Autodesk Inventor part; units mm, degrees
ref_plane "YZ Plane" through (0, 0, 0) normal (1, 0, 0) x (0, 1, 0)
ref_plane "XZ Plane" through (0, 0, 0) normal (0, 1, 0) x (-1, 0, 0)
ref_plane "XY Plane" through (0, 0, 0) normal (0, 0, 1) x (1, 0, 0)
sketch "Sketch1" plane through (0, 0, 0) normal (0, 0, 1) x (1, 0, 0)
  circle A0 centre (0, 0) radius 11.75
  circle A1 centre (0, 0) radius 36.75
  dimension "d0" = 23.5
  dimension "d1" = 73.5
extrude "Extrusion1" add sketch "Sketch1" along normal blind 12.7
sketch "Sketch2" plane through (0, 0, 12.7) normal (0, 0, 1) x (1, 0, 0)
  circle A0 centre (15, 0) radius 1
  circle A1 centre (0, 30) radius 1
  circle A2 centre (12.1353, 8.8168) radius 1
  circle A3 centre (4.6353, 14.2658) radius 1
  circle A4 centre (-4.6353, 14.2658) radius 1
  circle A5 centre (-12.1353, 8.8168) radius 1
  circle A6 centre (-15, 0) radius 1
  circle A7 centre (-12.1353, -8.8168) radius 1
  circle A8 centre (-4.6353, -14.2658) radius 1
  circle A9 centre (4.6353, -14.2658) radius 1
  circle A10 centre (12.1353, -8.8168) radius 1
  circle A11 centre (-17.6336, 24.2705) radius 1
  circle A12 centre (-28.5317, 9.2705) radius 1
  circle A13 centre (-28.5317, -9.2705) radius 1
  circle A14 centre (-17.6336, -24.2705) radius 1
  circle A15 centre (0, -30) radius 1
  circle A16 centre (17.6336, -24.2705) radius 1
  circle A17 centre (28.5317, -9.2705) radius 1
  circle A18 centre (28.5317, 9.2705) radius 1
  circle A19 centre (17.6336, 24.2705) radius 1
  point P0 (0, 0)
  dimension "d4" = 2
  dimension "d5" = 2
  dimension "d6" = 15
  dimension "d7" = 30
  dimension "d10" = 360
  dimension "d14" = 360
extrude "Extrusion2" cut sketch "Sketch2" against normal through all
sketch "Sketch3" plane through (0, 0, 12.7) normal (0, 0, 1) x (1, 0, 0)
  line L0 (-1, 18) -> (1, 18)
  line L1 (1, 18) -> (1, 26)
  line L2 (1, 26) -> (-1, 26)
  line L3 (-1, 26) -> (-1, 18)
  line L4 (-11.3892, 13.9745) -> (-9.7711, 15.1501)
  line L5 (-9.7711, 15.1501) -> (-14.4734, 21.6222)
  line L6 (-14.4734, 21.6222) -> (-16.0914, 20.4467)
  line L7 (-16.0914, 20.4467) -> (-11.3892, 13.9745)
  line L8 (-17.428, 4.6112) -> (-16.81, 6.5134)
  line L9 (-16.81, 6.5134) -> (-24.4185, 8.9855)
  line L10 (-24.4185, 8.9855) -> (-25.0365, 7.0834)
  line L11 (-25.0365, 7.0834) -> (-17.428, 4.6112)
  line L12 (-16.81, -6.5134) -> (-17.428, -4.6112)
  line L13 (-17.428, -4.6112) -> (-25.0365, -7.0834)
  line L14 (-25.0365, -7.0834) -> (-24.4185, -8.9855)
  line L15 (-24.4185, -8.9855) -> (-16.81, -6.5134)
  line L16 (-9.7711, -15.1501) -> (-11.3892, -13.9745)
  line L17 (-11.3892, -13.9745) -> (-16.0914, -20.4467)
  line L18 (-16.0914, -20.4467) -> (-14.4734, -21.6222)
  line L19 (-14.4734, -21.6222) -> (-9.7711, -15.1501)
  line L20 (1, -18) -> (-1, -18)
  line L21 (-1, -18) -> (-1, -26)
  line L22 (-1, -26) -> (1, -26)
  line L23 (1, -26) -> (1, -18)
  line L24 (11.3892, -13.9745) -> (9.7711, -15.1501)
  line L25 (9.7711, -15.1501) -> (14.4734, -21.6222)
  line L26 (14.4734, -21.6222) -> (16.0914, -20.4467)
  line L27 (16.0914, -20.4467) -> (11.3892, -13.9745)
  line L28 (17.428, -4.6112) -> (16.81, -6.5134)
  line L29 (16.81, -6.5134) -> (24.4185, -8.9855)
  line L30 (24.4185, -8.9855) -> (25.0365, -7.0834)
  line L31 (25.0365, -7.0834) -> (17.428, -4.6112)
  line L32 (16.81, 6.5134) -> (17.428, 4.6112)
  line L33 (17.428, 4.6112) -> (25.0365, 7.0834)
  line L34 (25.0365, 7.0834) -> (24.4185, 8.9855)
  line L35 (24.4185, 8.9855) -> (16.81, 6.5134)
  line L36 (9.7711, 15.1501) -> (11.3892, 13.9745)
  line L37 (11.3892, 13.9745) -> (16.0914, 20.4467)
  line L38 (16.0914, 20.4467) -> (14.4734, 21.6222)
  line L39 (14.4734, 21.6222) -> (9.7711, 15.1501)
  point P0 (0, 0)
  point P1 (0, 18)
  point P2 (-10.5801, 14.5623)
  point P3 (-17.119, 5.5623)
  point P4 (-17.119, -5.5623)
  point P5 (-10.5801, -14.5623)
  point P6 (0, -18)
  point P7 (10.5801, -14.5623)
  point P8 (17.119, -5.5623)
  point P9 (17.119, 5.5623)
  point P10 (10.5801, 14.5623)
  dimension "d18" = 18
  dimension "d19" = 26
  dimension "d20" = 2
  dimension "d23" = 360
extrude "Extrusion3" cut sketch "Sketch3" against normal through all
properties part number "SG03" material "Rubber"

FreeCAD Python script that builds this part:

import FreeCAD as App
import Part
import Sketcher
from FreeCAD import Vector
Q = App.Units.Quantity

doc = App.newDocument("Part")
body = doc.addObject("PartDesign::Body", "Body")

sketch1 = body.newObject("Sketcher::SketchObject", "Sketch")
sketch1.AttachmentSupport = (doc.getObject("XY_Plane"), [""])
sketch1.MapMode = "FlatFace"
sketch1.addGeometry(Part.Circle(Vector(0, 0, 0), Vector(0, 0, 1), 37), False)
sketch1.addGeometry(Part.Circle(Vector(0, 0, 0), Vector(0, 0, 1), 12), False)
sketch1.addConstraint(Sketcher.Constraint("Coincident", 0, 3, -1, 1))
sketch1.addConstraint(Sketcher.Constraint("Coincident", 1, 3, -1, 1))
sketch1.addConstraint(Sketcher.Constraint("Diameter", 0, 73.5))
sketch1.addConstraint(Sketcher.Constraint("Diameter", 1, 23.5))
pad1 = body.newObject("PartDesign::Pad", "Pad")
pad1.Profile = sketch1
pad1.Length = 12.7

sketch2 = body.newObject("Sketcher::SketchObject", "Sketch001")
sketch2.AttachmentSupport = (doc.getObject("XY_Plane"), [""])
sketch2.MapMode = "FlatFace"
sketch2.AttachmentOffset = App.Placement(Vector(0, 0, 12.7), App.Rotation())
sketch2.addGeometry(Part.Circle(Vector(15, 0, 0), Vector(0, 0, 1), 1), False)
sketch2.addGeometry(Part.Circle(Vector(0, 30, 0), Vector(0, 0, 1), 1), False)
sketch2.addGeometry(Part.Circle(Vector(12.1, 8.8, 0), Vector(0, 0, 1), 1), False)
sketch2.addGeometry(Part.Circle(Vector(4.6, 14.3, 0), Vector(0, 0, 1), 1), False)
sketch2.addGeometry(Part.Circle(Vector(-4.6, 14.3, 0), Vector(0, 0, 1), 1), False)
sketch2.addGeometry(Part.Circle(Vector(-12.1, 8.8, 0), Vector(0, 0, 1), 1), False)
sketch2.addGeometry(Part.Circle(Vector(-15, 0, 0), Vector(0, 0, 1), 1), False)
sketch2.addGeometry(Part.Circle(Vector(-12.1, -8.8, 0), Vector(0, 0, 1), 1), False)
sketch2.addGeometry(Part.Circle(Vector(-4.6, -14.3, 0), Vector(0, 0, 1), 1), False)
sketch2.addGeometry(Part.Circle(Vector(4.6, -14.3, 0), Vector(0, 0, 1), 1), False)
sketch2.addGeometry(Part.Circle(Vector(12.1, -8.8, 0), Vector(0, 0, 1), 1), False)
sketch2.addGeometry(Part.Circle(Vector(-17.6, 24.3, 0), Vector(0, 0, 1), 1), False)
sketch2.addGeometry(Part.Circle(Vector(-28.5, 9.3, 0), Vector(0, 0, 1), 1), False)
sketch2.addGeometry(Part.Circle(Vector(-28.5, -9.3, 0), Vector(0, 0, 1), 1), False)
sketch2.addGeometry(Part.Circle(Vector(-17.6, -24.3, 0), Vector(0, 0, 1), 1), False)
sketch2.addGeometry(Part.Circle(Vector(0, -30, 0), Vector(0, 0, 1), 1), False)
sketch2.addGeometry(Part.Circle(Vector(17.6, -24.3, 0), Vector(0, 0, 1), 1), False)
sketch2.addGeometry(Part.Circle(Vector(28.5, -9.3, 0), Vector(0, 0, 1), 1), False)
sketch2.addGeometry(Part.Circle(Vector(28.5, 9.3, 0), Vector(0, 0, 1), 1), False)
sketch2.addGeometry(Part.Circle(Vector(17.6, 24.3, 0), Vector(0, 0, 1), 1), False)
sketch2.addConstraint(Sketcher.Constraint("Equal", 0, 1))
sketch2.addConstraint(Sketcher.Constraint("Equal", 1, 2))
sketch2.addConstraint(Sketcher.Constraint("Equal", 2, 3))
sketch2.addConstraint(Sketcher.Constraint("Equal", 3, 4))
sketch2.addConstraint(Sketcher.Constraint("Equal", 4, 5))
sketch2.addConstraint(Sketcher.Constraint("Equal", 5, 6))
sketch2.addConstraint(Sketcher.Constraint("Equal", 6, 7))
sketch2.addConstraint(Sketcher.Constraint("Equal", 7, 8))
sketch2.addConstraint(Sketcher.Constraint("Equal", 8, 9))
sketch2.addConstraint(Sketcher.Constraint("Equal", 9, 10))
sketch2.addConstraint(Sketcher.Constraint("Equal", 10, 11))
sketch2.addConstraint(Sketcher.Constraint("Equal", 11, 12))
sketch2.addConstraint(Sketcher.Constraint("Equal", 12, 13))
sketch2.addConstraint(Sketcher.Constraint("Equal", 13, 14))
sketch2.addConstraint(Sketcher.Constraint("Equal", 14, 15))
sketch2.addConstraint(Sketcher.Constraint("Equal", 15, 16))
sketch2.addConstraint(Sketcher.Constraint("Equal", 16, 17))
sketch2.addConstraint(Sketcher.Constraint("Equal", 17, 18))
sketch2.addConstraint(Sketcher.Constraint("Equal", 18, 19))
sketch2.addConstraint(Sketcher.Constraint("Symmetric", 0, 3, 6, 3, -1, 1))
sketch2.addConstraint(Sketcher.Constraint("Symmetric", 2, 3, 7, 3, -1, 1))
sketch2.addConstraint(Sketcher.Constraint("Symmetric", 3, 3, 8, 3, -1, 1))
sketch2.addConstraint(Sketcher.Constraint("Symmetric", 4, 3, 9, 3, -1, 1))
sketch2.addConstraint(Sketcher.Constraint("Symmetric", 5, 3, 10, 3, -1, 1))
sketch2.addConstraint(Sketcher.Constraint("Symmetric", 1, 3, 15, 3, -1, 1))
sketch2.addConstraint(Sketcher.Constraint("Symmetric", 11, 3, 16, 3, -1, 1))
sketch2.addConstraint(Sketcher.Constraint("Symmetric", 12, 3, 17, 3, -1, 1))
sketch2.addConstraint(Sketcher.Constraint("Symmetric", 13, 3, 18, 3, -1, 1))
sketch2.addConstraint(Sketcher.Constraint("Symmetric", 14, 3, 19, 3, -1, 1))
sketch2.addConstraint(Sketcher.Constraint("Symmetric", 3, 3, 4, 3, -2))
sketch2.addConstraint(Sketcher.Constraint("Symmetric", 2, 3, 5, 3, -2))
sketch2.addConstraint(Sketcher.Constraint("Symmetric", 14, 3, 16, 3, -2))
sketch2.addConstraint(Sketcher.Constraint("Symmetric", 13, 3, 17, 3, -2))
sketch2.addConstraint(Sketcher.Constraint("PointOnObject", 0, 3, -1))
sketch2.addConstraint(Sketcher.Constraint("PointOnObject", 1, 3, -2))
sketch2.addConstraint(Sketcher.Constraint("Diameter", 0, 2.0))
sketch2.addConstraint(Sketcher.Constraint("DistanceX", -1, 1, 0, 3, 15.0))
sketch2.addConstraint(Sketcher.Constraint("DistanceY", -1, 1, 1, 3, 30.0))
sketch2.addConstraint(Sketcher.Constraint("DistanceY", 12, 3, 11, 3, 15.0))
sketch2.addConstraint(Sketcher.Constraint("DistanceX", 3, 3, 2, 3, 7.5))
sketch2.addConstraint(Sketcher.Constraint("DistanceY", 2, 3, 3, 3, 5.449))
sketch2.addConstraint(Sketcher.Constraint("DistanceX", 11, 3, 3, 3, 22.269))
sketch2.addConstraint(Sketcher.Constraint("DistanceX", 12, 3, 11, 3, 10.898))
sketch2.addConstraint(Sketcher.Constraint("DistanceY", 13, 3, 12, 3, 18.541))
sketch2.addConstraint(Sketcher.Constraint("DistanceX", -1, 1, 2, 3, 12.1353))
sketch2.addConstraint(Sketcher.Constraint("DistanceY", -1, 1, 2, 3, 8.8168))
pocket1 = body.newObject("PartDesign::Pocket", "Pocket")
pocket1.Profile = sketch2
pocket1.Type = "ThroughAll"

sketch3 = body.newObject("Sketcher::SketchObject", "Sketch002")
sketch3.AttachmentSupport = (doc.getObject("XY_Plane"), [""])
sketch3.MapMode = "FlatFace"
sketch3.AttachmentOffset = App.Placement(Vector(0, 0, 12.7), App.Rotation())
sketch3.addGeometry(Part.LineSegment(Vector(-1, 26, 0), Vector(-1, 18, 0)), False)
sketch3.addGeometry(Part.LineSegment(Vector(-1, 18, 0), Vector(1, 18, 0)), False)
sketch3.addGeometry(Part.LineSegment(Vector(1, 18, 0), Vector(1, 26, 0)), False)
sketch3.addGeometry(Part.LineSegment(Vector(1, 26, 0), Vector(-1, 26, 0)), False)
sketch3.addGeometry(Part.LineSegment(Vector(-16.1, 20.4, 0), Vector(-11.4, 14, 0)), False)
sketch3.addGeometry(Part.LineSegment(Vector(-11.4, 14, 0), Vector(-9.8, 15.2, 0)), False)
sketch3.addGeometry(Part.LineSegment(Vector(-9.8, 15.2, 0), Vector(-14.5, 21.6, 0)), False)
sketch3.addGeometry(Part.LineSegment(Vector(-14.5, 21.6, 0), Vector(-16.1, 20.4, 0)), False)
sketch3.addGeometry(Part.LineSegment(Vector(-25, 7.1, 0), Vector(-17.4, 4.6, 0)), False)
sketch3.addGeometry(Part.LineSegment(Vector(-17.4, 4.6, 0), Vector(-16.8, 6.5, 0)), False)
sketch3.addGeometry(Part.LineSegment(Vector(-16.8, 6.5, 0), Vector(-24.4, 9, 0)), False)
sketch3.addGeometry(Part.LineSegment(Vector(-24.4, 9, 0), Vector(-25, 7.1, 0)), False)
sketch3.addGeometry(Part.LineSegment(Vector(-24.4, -9, 0), Vector(-16.8, -6.5, 0)), False)
sketch3.addGeometry(Part.LineSegment(Vector(-16.8, -6.5, 0), Vector(-17.4, -4.6, 0)), False)
sketch3.addGeometry(Part.LineSegment(Vector(-17.4, -4.6, 0), Vector(-25, -7.1, 0)), False)
sketch3.addGeometry(Part.LineSegment(Vector(-25, -7.1, 0), Vector(-24.4, -9, 0)), False)
sketch3.addGeometry(Part.LineSegment(Vector(-14.5, -21.6, 0), Vector(-9.8, -15.2, 0)), False)
sketch3.addGeometry(Part.LineSegment(Vector(-9.8, -15.2, 0), Vector(-11.4, -14, 0)), False)
sketch3.addGeometry(Part.LineSegment(Vector(-11.4, -14, 0), Vector(-16.1, -20.4, 0)), False)
sketch3.addGeometry(Part.LineSegment(Vector(-16.1, -20.4, 0), Vector(-14.5, -21.6, 0)), False)
sketch3.addGeometry(Part.LineSegment(Vector(1, -26, 0), Vector(1, -18, 0)), False)
sketch3.addGeometry(Part.LineSegment(Vector(1, -18, 0), Vector(-1, -18, 0)), False)
sketch3.addGeometry(Part.LineSegment(Vector(-1, -18, 0), Vector(-1, -26, 0)), False)
sketch3.addGeometry(Part.LineSegment(Vector(-1, -26, 0), Vector(1, -26, 0)), False)
sketch3.addGeometry(Part.LineSegment(Vector(16.1, -20.4, 0), Vector(11.4, -14, 0)), False)
sketch3.addGeometry(Part.LineSegment(Vector(11.4, -14, 0), Vector(9.8, -15.2, 0)), False)
sketch3.addGeometry(Part.LineSegment(Vector(9.8, -15.2, 0), Vector(14.5, -21.6, 0)), False)
sketch3.addGeometry(Part.LineSegment(Vector(14.5, -21.6, 0), Vector(16.1, -20.4, 0)), False)
sketch3.addGeometry(Part.LineSegment(Vector(25, -7.1, 0), Vector(17.4, -4.6, 0)), False)
sketch3.addGeometry(Part.LineSegment(Vector(17.4, -4.6, 0), Vector(16.8, -6.5, 0)), False)
sketch3.addGeometry(Part.LineSegment(Vector(16.8, -6.5, 0), Vector(24.4, -9, 0)), False)
sketch3.addGeometry(Part.LineSegment(Vector(24.4, -9, 0), Vector(25, -7.1, 0)), False)
sketch3.addGeometry(Part.LineSegment(Vector(24.4, 9, 0), Vector(16.8, 6.5, 0)), False)
sketch3.addGeometry(Part.LineSegment(Vector(16.8, 6.5, 0), Vector(17.4, 4.6, 0)), False)
sketch3.addGeometry(Part.LineSegment(Vector(17.4, 4.6, 0), Vector(25, 7.1, 0)), False)
sketch3.addGeometry(Part.LineSegment(Vector(25, 7.1, 0), Vector(24.4, 9, 0)), False)
sketch3.addGeometry(Part.LineSegment(Vector(14.5, 21.6, 0), Vector(9.8, 15.2, 0)), False)
sketch3.addGeometry(Part.LineSegment(Vector(9.8, 15.2, 0), Vector(11.4, 14, 0)), False)
sketch3.addGeometry(Part.LineSegment(Vector(11.4, 14, 0), Vector(16.1, 20.4, 0)), False)
sketch3.addGeometry(Part.LineSegment(Vector(16.1, 20.4, 0), Vector(14.5, 21.6, 0)), False)
sketch3.addConstraint(Sketcher.Constraint("Coincident", 0, 2, 1, 1))
sketch3.addConstraint(Sketcher.Constraint("Coincident", 1, 2, 2, 1))
sketch3.addConstraint(Sketcher.Constraint("Coincident", 2, 2, 3, 1))
sketch3.addConstraint(Sketcher.Constraint("Coincident", 3, 2, 0, 1))
sketch3.addConstraint(Sketcher.Constraint("Coincident", 4, 2, 5, 1))
sketch3.addConstraint(Sketcher.Constraint("Coincident", 5, 2, 6, 1))
sketch3.addConstraint(Sketcher.Constraint("Coincident", 6, 2, 7, 1))
sketch3.addConstraint(Sketcher.Constraint("Coincident", 7, 2, 4, 1))
sketch3.addConstraint(Sketcher.Constraint("Coincident", 8, 2, 9, 1))
sketch3.addConstraint(Sketcher.Constraint("Coincident", 9, 2, 10, 1))
sketch3.addConstraint(Sketcher.Constraint("Coincident", 10, 2, 11, 1))
sketch3.addConstraint(Sketcher.Constraint("Coincident", 11, 2, 8, 1))
sketch3.addConstraint(Sketcher.Constraint("Coincident", 12, 2, 13, 1))
sketch3.addConstraint(Sketcher.Constraint("Coincident", 13, 2, 14, 1))
sketch3.addConstraint(Sketcher.Constraint("Coincident", 14, 2, 15, 1))
sketch3.addConstraint(Sketcher.Constraint("Coincident", 15, 2, 12, 1))
sketch3.addConstraint(Sketcher.Constraint("Coincident", 16, 2, 17, 1))
sketch3.addConstraint(Sketcher.Constraint("Coincident", 17, 2, 18, 1))
sketch3.addConstraint(Sketcher.Constraint("Coincident", 18, 2, 19, 1))
sketch3.addConstraint(Sketcher.Constraint("Coincident", 19, 2, 16, 1))
sketch3.addConstraint(Sketcher.Constraint("Coincident", 20, 2, 21, 1))
sketch3.addConstraint(Sketcher.Constraint("Coincident", 21, 2, 22, 1))
sketch3.addConstraint(Sketcher.Constraint("Coincident", 22, 2, 23, 1))
sketch3.addConstraint(Sketcher.Constraint("Coincident", 23, 2, 20, 1))
sketch3.addConstraint(Sketcher.Constraint("Coincident", 24, 2, 25, 1))
sketch3.addConstraint(Sketcher.Constraint("Coincident", 25, 2, 26, 1))
sketch3.addConstraint(Sketcher.Constraint("Coincident", 26, 2, 27, 1))
sketch3.addConstraint(Sketcher.Constraint("Coincident", 27, 2, 24, 1))
sketch3.addConstraint(Sketcher.Constraint("Coincident", 28, 2, 29, 1))
sketch3.addConstraint(Sketcher.Constraint("Coincident", 29, 2, 30, 1))
sketch3.addConstraint(Sketcher.Constraint("Coincident", 30, 2, 31, 1))
sketch3.addConstraint(Sketcher.Constraint("Coincident", 31, 2, 28, 1))
sketch3.addConstraint(Sketcher.Constraint("Coincident", 32, 2, 33, 1))
sketch3.addConstraint(Sketcher.Constraint("Coincident", 33, 2, 34, 1))
sketch3.addConstraint(Sketcher.Constraint("Coincident", 34, 2, 35, 1))
sketch3.addConstraint(Sketcher.Constraint("Coincident", 35, 2, 32, 1))
sketch3.addConstraint(Sketcher.Constraint("Coincident", 36, 2, 37, 1))
sketch3.addConstraint(Sketcher.Constraint("Coincident", 37, 2, 38, 1))
sketch3.addConstraint(Sketcher.Constraint("Coincident", 38, 2, 39, 1))
sketch3.addConstraint(Sketcher.Constraint("Coincident", 39, 2, 36, 1))
sketch3.addConstraint(Sketcher.Constraint("Vertical", 0))
sketch3.addConstraint(Sketcher.Constraint("Horizontal", 1))
sketch3.addConstraint(Sketcher.Constraint("Vertical", 2))
sketch3.addConstraint(Sketcher.Constraint("Horizontal", 3))
sketch3.addConstraint(Sketcher.Constraint("Vertical", 20))
sketch3.addConstraint(Sketcher.Constraint("Horizontal", 21))
sketch3.addConstraint(Sketcher.Constraint("Vertical", 22))
sketch3.addConstraint(Sketcher.Constraint("Horizontal", 23))
sketch3.addConstraint(Sketcher.Constraint("Symmetric", 0, 2, 20, 2, -1, 1))
sketch3.addConstraint(Sketcher.Constraint("Symmetric", 2, 2, 22, 2, -1, 1))
sketch3.addConstraint(Sketcher.Constraint("Symmetric", 4, 2, 24, 2, -1, 1))
sketch3.addConstraint(Sketcher.Constraint("Symmetric", 5, 2, 25, 2, -1, 1))
sketch3.addConstraint(Sketcher.Constraint("Symmetric", 6, 2, 26, 2, -1, 1))
sketch3.addConstraint(Sketcher.Constraint("Symmetric", 7, 2, 27, 2, -1, 1))
sketch3.addConstraint(Sketcher.Constraint("Symmetric", 8, 2, 28, 2, -1, 1))
sketch3.addConstraint(Sketcher.Constraint("Symmetric", 9, 2, 29, 2, -1, 1))
sketch3.addConstraint(Sketcher.Constraint("Symmetric", 10, 2, 30, 2, -1, 1))
sketch3.addConstraint(Sketcher.Constraint("Symmetric", 11, 2, 31, 2, -1, 1))
sketch3.addConstraint(Sketcher.Constraint("Symmetric", 12, 2, 32, 2, -1, 1))
sketch3.addConstraint(Sketcher.Constraint("Symmetric", 13, 2, 33, 2, -1, 1))
sketch3.addConstraint(Sketcher.Constraint("Symmetric", 14, 2, 34, 2, -1, 1))
sketch3.addConstraint(Sketcher.Constraint("Symmetric", 15, 2, 35, 2, -1, 1))
sketch3.addConstraint(Sketcher.Constraint("Symmetric", 16, 2, 36, 2, -1, 1))
sketch3.addConstraint(Sketcher.Constraint("Symmetric", 17, 2, 37, 2, -1, 1))
sketch3.addConstraint(Sketcher.Constraint("Symmetric", 18, 2, 38, 2, -1, 1))
sketch3.addConstraint(Sketcher.Constraint("Symmetric", 19, 2, 39, 2, -1, 1))
sketch3.addConstraint(Sketcher.Constraint("Symmetric", 17, 2, 24, 2, -2))
sketch3.addConstraint(Sketcher.Constraint("Symmetric", 16, 2, 25, 2, -2))
sketch3.addConstraint(Sketcher.Constraint("Symmetric", 19, 2, 26, 2, -2))
sketch3.addConstraint(Sketcher.Constraint("Symmetric", 18, 2, 27, 2, -2))
sketch3.addConstraint(Sketcher.Constraint("Symmetric", 13, 2, 28, 2, -2))
sketch3.addConstraint(Sketcher.Constraint("Symmetric", 12, 2, 29, 2, -2))
sketch3.addConstraint(Sketcher.Constraint("Symmetric", 15, 2, 30, 2, -2))
sketch3.addConstraint(Sketcher.Constraint("Symmetric", 14, 2, 31, 2, -2))
sketch3.addConstraint(Sketcher.Constraint("Perpendicular", 4, 5))
sketch3.addConstraint(Sketcher.Constraint("Perpendicular", 5, 6))
sketch3.addConstraint(Sketcher.Constraint("Perpendicular", 6, 7))
sketch3.addConstraint(Sketcher.Constraint("Perpendicular", 8, 9))
sketch3.addConstraint(Sketcher.Constraint("Perpendicular", 9, 10))
sketch3.addConstraint(Sketcher.Constraint("Perpendicular", 10, 11))
sketch3.addConstraint(Sketcher.Constraint("Vertical", 2, 2, 20, 2))
sketch3.addConstraint(Sketcher.Constraint("Equal", 6, 8))
sketch3.addConstraint(Sketcher.Constraint("Equal", 7, 9))
sketch3.addConstraint(Sketcher.Constraint("DistanceX", 1, 1, 1, 2, 2.0))
sketch3.addConstraint(Sketcher.Constraint("Angle", 8, Q("-18.0003 deg")))
sketch3.addConstraint(Sketcher.Constraint("Distance", 5, 2.0))
sketch3.addConstraint(Sketcher.Constraint("DistanceY", -1, 1, 0, 2, 18.0))
sketch3.addConstraint(Sketcher.Constraint("DistanceY", -1, 1, 2, 2, 26.0))
sketch3.addConstraint(Sketcher.Constraint("Angle", 4, Q("-54.0007 deg")))
sketch3.addConstraint(Sketcher.Constraint("Distance", 4, 8.0))
sketch3.addConstraint(Sketcher.Constraint("DistanceY", -1, 1, 5, 2, 15.15))
sketch3.addConstraint(Sketcher.Constraint("DistanceX", 9, 2, -1, 1, 16.81))
sketch3.addConstraint(Sketcher.Constraint("DistanceX", 5, 2, -1, 1, 9.771))
sketch3.addConstraint(Sketcher.Constraint("DistanceY", 8, 2, 5, 2, 10.539))
pocket2 = body.newObject("PartDesign::Pocket", "Pocket001")
pocket2.Profile = sketch3
pocket2.Type = "ThroughAll"

doc.recompute()
